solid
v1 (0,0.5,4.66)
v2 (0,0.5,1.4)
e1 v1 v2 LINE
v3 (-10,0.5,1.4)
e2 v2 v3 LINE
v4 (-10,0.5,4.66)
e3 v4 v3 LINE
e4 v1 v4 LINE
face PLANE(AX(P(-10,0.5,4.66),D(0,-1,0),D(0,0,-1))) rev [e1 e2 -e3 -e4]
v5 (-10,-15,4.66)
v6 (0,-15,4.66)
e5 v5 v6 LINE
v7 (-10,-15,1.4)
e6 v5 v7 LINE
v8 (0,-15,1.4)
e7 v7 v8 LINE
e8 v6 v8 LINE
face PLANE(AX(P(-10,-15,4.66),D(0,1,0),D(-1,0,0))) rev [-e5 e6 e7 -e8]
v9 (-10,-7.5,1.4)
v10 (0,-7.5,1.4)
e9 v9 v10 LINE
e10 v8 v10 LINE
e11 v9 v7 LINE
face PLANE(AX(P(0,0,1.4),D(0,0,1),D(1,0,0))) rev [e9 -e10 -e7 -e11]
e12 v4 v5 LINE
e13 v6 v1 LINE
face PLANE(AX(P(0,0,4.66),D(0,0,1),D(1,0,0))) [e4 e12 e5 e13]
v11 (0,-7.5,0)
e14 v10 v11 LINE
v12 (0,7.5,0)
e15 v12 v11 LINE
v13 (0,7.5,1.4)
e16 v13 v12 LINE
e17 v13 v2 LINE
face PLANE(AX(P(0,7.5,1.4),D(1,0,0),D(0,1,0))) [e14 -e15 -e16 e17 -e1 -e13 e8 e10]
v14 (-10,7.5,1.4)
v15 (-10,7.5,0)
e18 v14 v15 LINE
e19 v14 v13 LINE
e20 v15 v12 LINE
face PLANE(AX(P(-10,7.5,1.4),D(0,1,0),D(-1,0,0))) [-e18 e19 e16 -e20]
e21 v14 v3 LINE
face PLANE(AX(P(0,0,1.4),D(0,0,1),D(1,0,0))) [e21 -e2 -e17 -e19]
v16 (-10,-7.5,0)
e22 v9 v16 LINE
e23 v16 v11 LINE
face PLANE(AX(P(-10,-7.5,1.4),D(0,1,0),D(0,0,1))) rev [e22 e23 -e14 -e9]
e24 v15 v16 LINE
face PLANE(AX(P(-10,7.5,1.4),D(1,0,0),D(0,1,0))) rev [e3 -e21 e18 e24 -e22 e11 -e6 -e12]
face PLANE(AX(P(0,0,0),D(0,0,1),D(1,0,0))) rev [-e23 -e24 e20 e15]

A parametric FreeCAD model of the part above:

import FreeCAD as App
import Part
import Sketcher
Q = App.Units.Quantity

doc = App.newDocument("Part")
body = doc.addObject("PartDesign::Body", "Body")

# Sketch on XY plane
sketch1 = doc.addObject("Sketcher::SketchObject", "Sketch")
body.addObject(sketch1)
sketch1.AttachmentSupport = (doc.XY_Plane, [""])
sketch1.MapMode = "FlatFace"
sketch1.addGeometry(Part.LineSegment(App.Vector(-10, 8, 0), App.Vector(-10, -8, 0)), False)
sketch1.addGeometry(Part.LineSegment(App.Vector(-10, -8, 0), App.Vector(0, -8, 0)), False)
sketch1.addGeometry(Part.LineSegment(App.Vector(0, -8, 0), App.Vector(0, 8, 0)), False)
sketch1.addGeometry(Part.LineSegment(App.Vector(0, 8, 0), App.Vector(-10, 8, 0)), False)
sketch1.addConstraint(Sketcher.Constraint("Coincident", 0, 2, 1, 1))
sketch1.addConstraint(Sketcher.Constraint("Coincident", 1, 2, 2, 1))
sketch1.addConstraint(Sketcher.Constraint("Coincident", 2, 2, 3, 1))
sketch1.addConstraint(Sketcher.Constraint("Coincident", 3, 2, 0, 1))
sketch1.addConstraint(Sketcher.Constraint("Vertical", 0))
sketch1.addConstraint(Sketcher.Constraint("Horizontal", 1))
sketch1.addConstraint(Sketcher.Constraint("Vertical", 2))
sketch1.addConstraint(Sketcher.Constraint("Horizontal", 3))
sketch1.addConstraint(Sketcher.Constraint("Symmetric", 1, 2, 2, 2, -1, 1))
sketch1.addConstraint(Sketcher.Constraint("DistanceX", 1, 1, 1, 2, Q("10 mm")))
sketch1.addConstraint(Sketcher.Constraint("DistanceY", 0, 2, 0, 1, Q("15 mm")))
pad1 = doc.addObject("PartDesign::Pad", "Pad")
body.addObject(pad1)
pad1.Profile = sketch1
pad1.Length = 1.4

# Sketch on XY plane
sketch2 = doc.addObject("Sketcher::SketchObject", "Sketch001")
body.addObject(sketch2)
sketch2.AttachmentSupport = (doc.XY_Plane, [""])
sketch2.MapMode = "FlatFace"
sketch2.AttachmentOffset = App.Placement(App.Vector(0, 0, 1.4), App.Rotation())
sketch2.addGeometry(Part.LineSegment(App.Vector(-10, 0, 0), App.Vector(-10, -15, 0)), False)
sketch2.addGeometry(Part.LineSegment(App.Vector(-10, -15, 0), App.Vector(0, -15, 0)), False)
sketch2.addGeometry(Part.LineSegment(App.Vector(0, -15, 0), App.Vector(0, 0, 0)), False)
sketch2.addGeometry(Part.LineSegment(App.Vector(0, 0, 0), App.Vector(-10, 0, 0)), False)
sketch2.addConstraint(Sketcher.Constraint("Coincident", 0, 2, 1, 1))
sketch2.addConstraint(Sketcher.Constraint("Coincident", 1, 2, 2, 1))
sketch2.addConstraint(Sketcher.Constraint("Coincident", 2, 2, 3, 1))
sketch2.addConstraint(Sketcher.Constraint("Coincident", 3, 2, 0, 1))
sketch2.addConstraint(Sketcher.Constraint("Vertical", 0))
sketch2.addConstraint(Sketcher.Constraint("Horizontal", 1))
sketch2.addConstraint(Sketcher.Constraint("Vertical", 2))
sketch2.addConstraint(Sketcher.Constraint("Horizontal", 3))
sketch2.addConstraint(Sketcher.Constraint("PointOnObject", 1, 2, -2))
sketch2.addConstraint(Sketcher.Constraint("DistanceX", 1, 1, 1, 2, Q("10 mm")))
sketch2.addConstraint(Sketcher.Constraint("DistanceY", 0, 2, 0, 1, Q("15.5 mm")))
sketch2.addConstraint(Sketcher.Constraint("DistanceY", 0, 2, -1, 1, Q("15 mm")))
pad2 = doc.addObject("PartDesign::Pad", "Pad001")
body.addObject(pad2)
pad2.Profile = sketch2
pad2.Length = 3.26

doc.recompute()
